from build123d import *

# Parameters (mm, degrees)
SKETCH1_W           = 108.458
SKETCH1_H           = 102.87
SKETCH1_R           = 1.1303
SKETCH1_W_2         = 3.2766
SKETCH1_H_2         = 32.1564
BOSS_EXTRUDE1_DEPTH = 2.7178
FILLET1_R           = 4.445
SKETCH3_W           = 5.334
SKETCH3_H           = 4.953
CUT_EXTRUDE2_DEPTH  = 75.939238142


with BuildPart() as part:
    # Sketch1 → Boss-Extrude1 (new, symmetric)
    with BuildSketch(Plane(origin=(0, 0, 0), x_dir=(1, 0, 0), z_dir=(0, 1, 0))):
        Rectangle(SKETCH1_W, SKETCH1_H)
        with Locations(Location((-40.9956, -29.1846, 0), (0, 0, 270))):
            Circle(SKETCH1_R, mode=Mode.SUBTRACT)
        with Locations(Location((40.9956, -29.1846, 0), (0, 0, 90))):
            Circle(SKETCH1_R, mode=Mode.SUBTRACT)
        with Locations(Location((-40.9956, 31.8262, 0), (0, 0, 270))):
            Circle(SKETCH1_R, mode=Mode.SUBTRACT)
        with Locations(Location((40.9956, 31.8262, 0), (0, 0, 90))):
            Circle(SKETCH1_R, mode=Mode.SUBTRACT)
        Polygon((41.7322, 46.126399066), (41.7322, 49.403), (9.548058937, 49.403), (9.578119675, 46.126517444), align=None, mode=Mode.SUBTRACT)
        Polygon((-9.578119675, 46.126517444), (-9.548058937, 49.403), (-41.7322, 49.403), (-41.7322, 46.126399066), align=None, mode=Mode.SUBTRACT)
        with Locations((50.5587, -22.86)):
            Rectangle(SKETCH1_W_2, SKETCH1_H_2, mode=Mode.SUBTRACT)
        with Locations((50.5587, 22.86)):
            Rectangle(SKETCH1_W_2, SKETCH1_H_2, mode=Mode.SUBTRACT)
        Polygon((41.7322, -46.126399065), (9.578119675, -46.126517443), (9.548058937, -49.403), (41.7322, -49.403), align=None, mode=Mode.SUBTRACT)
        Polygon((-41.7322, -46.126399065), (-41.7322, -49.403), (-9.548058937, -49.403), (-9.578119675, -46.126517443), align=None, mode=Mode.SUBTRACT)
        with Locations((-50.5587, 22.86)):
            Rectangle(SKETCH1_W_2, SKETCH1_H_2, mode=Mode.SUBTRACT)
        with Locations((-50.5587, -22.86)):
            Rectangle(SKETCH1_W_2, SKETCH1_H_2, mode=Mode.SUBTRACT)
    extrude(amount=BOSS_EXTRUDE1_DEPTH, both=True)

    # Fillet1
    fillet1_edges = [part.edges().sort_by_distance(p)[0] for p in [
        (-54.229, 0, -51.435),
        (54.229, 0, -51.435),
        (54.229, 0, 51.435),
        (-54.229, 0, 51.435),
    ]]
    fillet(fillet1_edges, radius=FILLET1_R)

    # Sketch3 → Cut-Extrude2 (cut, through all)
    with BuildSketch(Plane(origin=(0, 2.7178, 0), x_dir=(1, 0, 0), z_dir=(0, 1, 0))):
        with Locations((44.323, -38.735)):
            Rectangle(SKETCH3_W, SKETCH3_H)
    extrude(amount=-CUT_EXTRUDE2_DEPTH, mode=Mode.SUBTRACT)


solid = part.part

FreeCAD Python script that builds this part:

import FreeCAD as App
import Part
import Sketcher
Q = App.Units.Quantity


def edges_at(feature, points):
    """Names of the edges that pass closest to the given points."""
    edges = feature.Shape.Edges
    near = lambda p: min(range(len(edges)), key=lambda i: edges[i].distToShape(Part.Vertex(*p))[0])
    return sorted({f"Edge{near(p) + 1}" for p in points})

doc = App.newDocument("Part")
body = doc.addObject("PartDesign::Body", "Body")

# Sketch on XZ plane
sketch1 = body.newObject("Sketcher::SketchObject", "Sketch")
sketch1.AttachmentSupport = (doc.getObject("XZ_Plane"), [""])
sketch1.MapMode = "FlatFace"
sketch1.addGeometry(Part.LineSegment(App.Vector(-54.2, -51.4, 0), App.Vector(-54.2, 51.4, 0)), False)
sketch1.addGeometry(Part.LineSegment(App.Vector(-54.2, 51.4, 0), App.Vector(54.2, 51.4, 0)), False)
sketch1.addGeometry(Part.LineSegment(App.Vector(54.2, 51.4, 0), App.Vector(54.2, -51.4, 0)), False)
sketch1.addGeometry(Part.LineSegment(App.Vector(54.2, -51.4, 0), App.Vector(-54.2, -51.4, 0)), False)
sketch1.addGeometry(Part.Circle(App.Vector(-41, 29.2, 0), App.Vector(0, 0, 1), 1.1), False)
sketch1.addGeometry(Part.LineSegment(App.Vector(-41.7, 49.4, 0), App.Vector(-41.7, 46.1, 0)), False)
sketch1.addGeometry(Part.LineSegment(App.Vector(-41.7, 46.1, 0), App.Vector(-9.6, 46.1, 0)), False)
sketch1.addGeometry(Part.LineSegment(App.Vector(-9.6, 46.1, 0), App.Vector(-9.5, 49.4, 0)), False)
sketch1.addGeometry(Part.LineSegment(App.Vector(-9.5, 49.4, 0), App.Vector(-41.7, 49.4, 0)), False)
sketch1.addGeometry(Part.LineSegment(App.Vector(-48.9, 38.9, 0), App.Vector(-52.2, 38.9, 0)), False)
sketch1.addGeometry(Part.LineSegment(App.Vector(-52.2, 38.9, 0), App.Vector(-52.2, 6.8, 0)), False)
sketch1.addGeometry(Part.LineSegment(App.Vector(-52.2, 6.8, 0), App.Vector(-48.9, 6.8, 0)), False)
sketch1.addGeometry(Part.LineSegment(App.Vector(-48.9, 6.8, 0), App.Vector(-48.9, 38.9, 0)), False)
sketch1.addGeometry(Part.LineSegment(App.Vector(9.6, 46.1, 0), App.Vector(41.7, 46.1, 0)), False)
sketch1.addGeometry(Part.LineSegment(App.Vector(41.7, 46.1, 0), App.Vector(41.7, 49.4, 0)), False)
sketch1.addGeometry(Part.LineSegment(App.Vector(41.7, 49.4, 0), App.Vector(9.5, 49.4, 0)), False)
sketch1.addGeometry(Part.LineSegment(App.Vector(9.5, 49.4, 0), App.Vector(9.6, 46.1, 0)), False)
sketch1.addGeometry(Part.Circle(App.Vector(41, 29.2, 0), App.Vector(0, 0, 1), 1.1), False)
sketch1.addGeometry(Part.LineSegment(App.Vector(52.2, 38.9, 0), App.Vector(48.9, 38.9, 0)), False)
sketch1.addGeometry(Part.LineSegment(App.Vector(48.9, 38.9, 0), App.Vector(48.9, 6.8, 0)), False)
sketch1.addGeometry(Part.LineSegment(App.Vector(48.9, 6.8, 0), App.Vector(52.2, 6.8, 0)), False)
sketch1.addGeometry(Part.LineSegment(App.Vector(52.2, 6.8, 0), App.Vector(52.2, 38.9, 0)), False)
sketch1.addGeometry(Part.LineSegment(App.Vector(-48.9, -6.8, 0), App.Vector(-52.2, -6.8, 0)), False)
sketch1.addGeometry(Part.LineSegment(App.Vector(-52.2, -6.8, 0), App.Vector(-52.2, -38.9, 0)), False)
sketch1.addGeometry(Part.LineSegment(App.Vector(-52.2, -38.9, 0), App.Vector(-48.9, -38.9, 0)), False)
sketch1.addGeometry(Part.LineSegment(App.Vector(-48.9, -38.9, 0), App.Vector(-48.9, -6.8, 0)), False)
sketch1.addGeometry(Part.Circle(App.Vector(-41, -31.8, 0), App.Vector(0, 0, 1), 1.1), False)
sketch1.addGeometry(Part.LineSegment(App.Vector(-9.5, -49.4, 0), App.Vector(-9.6, -46.1, 0)), False)
sketch1.addGeometry(Part.LineSegment(App.Vector(-9.6, -46.1, 0), App.Vector(-41.7, -46.1, 0)), False)
sketch1.addGeometry(Part.LineSegment(App.Vector(-41.7, -46.1, 0), App.Vector(-41.7, -49.4, 0)), False)
sketch1.addGeometry(Part.LineSegment(App.Vector(-41.7, -49.4, 0), App.Vector(-9.5, -49.4, 0)), False)
sketch1.addGeometry(Part.LineSegment(App.Vector(52.2, -6.8, 0), App.Vector(48.9, -6.8, 0)), False)
sketch1.addGeometry(Part.LineSegment(App.Vector(48.9, -6.8, 0), App.Vector(48.9, -38.9, 0)), False)
sketch1.addGeometry(Part.LineSegment(App.Vector(48.9, -38.9, 0), App.Vector(52.2, -38.9, 0)), False)
sketch1.addGeometry(Part.LineSegment(App.Vector(52.2, -38.9, 0), App.Vector(52.2, -6.8, 0)), False)
sketch1.addGeometry(Part.LineSegment(App.Vector(41.7, -49.4, 0), App.Vector(41.7, -46.1, 0)), False)
sketch1.addGeometry(Part.LineSegment(App.Vector(41.7, -46.1, 0), App.Vector(9.6, -46.1, 0)), False)
sketch1.addGeometry(Part.LineSegment(App.Vector(9.6, -46.1, 0), App.Vector(9.5, -49.4, 0)), False)
sketch1.addGeometry(Part.LineSegment(App.Vector(9.5, -49.4, 0), App.Vector(41.7, -49.4, 0)), False)
sketch1.addGeometry(Part.Circle(App.Vector(41, -31.8, 0), App.Vector(0, 0, 1), 1.1), False)
sketch1.addConstraint(Sketcher.Constraint("Coincident", 0, 2, 1, 1))
sketch1.addConstraint(Sketcher.Constraint("Coincident", 1, 2, 2, 1))
sketch1.addConstraint(Sketcher.Constraint("Coincident", 2, 2, 3, 1))
sketch1.addConstraint(Sketcher.Constraint("Coincident", 3, 2, 0, 1))
sketch1.addConstraint(Sketcher.Constraint("Coincident", 5, 2, 6, 1))
sketch1.addConstraint(Sketcher.Constraint("Coincident", 6, 2, 7, 1))
sketch1.addConstraint(Sketcher.Constraint("Coincident", 7, 2, 8, 1))
sketch1.addConstraint(Sketcher.Constraint("Coincident", 8, 2, 5, 1))
sketch1.addConstraint(Sketcher.Constraint("Coincident", 9, 2, 10, 1))
sketch1.addConstraint(Sketcher.Constraint("Coincident", 10, 2, 11, 1))
sketch1.addConstraint(Sketcher.Constraint("Coincident", 11, 2, 12, 1))
sketch1.addConstraint(Sketcher.Constraint("Coincident", 12, 2, 9, 1))
sketch1.addConstraint(Sketcher.Constraint("Coincident", 13, 2, 14, 1))
sketch1.addConstraint(Sketcher.Constraint("Coincident", 14, 2, 15, 1))
sketch1.addConstraint(Sketcher.Constraint("Coincident", 15, 2, 16, 1))
sketch1.addConstraint(Sketcher.Constraint("Coincident", 16, 2, 13, 1))
sketch1.addConstraint(Sketcher.Constraint("Coincident", 18, 2, 19, 1))
sketch1.addConstraint(Sketcher.Constraint("Coincident", 19, 2, 20, 1))
sketch1.addConstraint(Sketcher.Constraint("Coincident", 20, 2, 21, 1))
sketch1.addConstraint(Sketcher.Constraint("Coincident", 21, 2, 18, 1))
sketch1.addConstraint(Sketcher.Constraint("Coincident", 22, 2, 23, 1))
sketch1.addConstraint(Sketcher.Constraint("Coincident", 23, 2, 24, 1))
sketch1.addConstraint(Sketcher.Constraint("Coincident", 24, 2, 25, 1))
sketch1.addConstraint(Sketcher.Constraint("Coincident", 25, 2, 22, 1))
sketch1.addConstraint(Sketcher.Constraint("Coincident", 27, 2, 28, 1))
sketch1.addConstraint(Sketcher.Constraint("Coincident", 28, 2, 29, 1))
sketch1.addConstraint(Sketcher.Constraint("Coincident", 29, 2, 30, 1))
sketch1.addConstraint(Sketcher.Constraint("Coincident", 30, 2, 27, 1))
sketch1.addConstraint(Sketcher.Constraint("Coincident", 31, 2, 32, 1))
sketch1.addConstraint(Sketcher.Constraint("Coincident", 32, 2, 33, 1))
sketch1.addConstraint(Sketcher.Constraint("Coincident", 33, 2, 34, 1))
sketch1.addConstraint(Sketcher.Constraint("Coincident", 34, 2, 31, 1))
sketch1.addConstraint(Sketcher.Constraint("Coincident", 35, 2, 36, 1))
sketch1.addConstraint(Sketcher.Constraint("Coincident", 36, 2, 37, 1))
sketch1.addConstraint(Sketcher.Constraint("Coincident", 37, 2, 38, 1))
sketch1.addConstraint(Sketcher.Constraint("Coincident", 38, 2, 35, 1))
sketch1.addConstraint(Sketcher.Constraint("Vertical", 0))
sketch1.addConstraint(Sketcher.Constraint("Horizontal", 1))
sketch1.addConstraint(Sketcher.Constraint("Vertical", 2))
sketch1.addConstraint(Sketcher.Constraint("Horizontal", 3))
sketch1.addConstraint(Sketcher.Constraint("Vertical", 5))
sketch1.addConstraint(Sketcher.Constraint("Horizontal", 8))
sketch1.addConstraint(Sketcher.Constraint("Horizontal", 9))
sketch1.addConstraint(Sketcher.Constraint("Vertical", 10))
sketch1.addConstraint(Sketcher.Constraint("Horizontal", 11))
sketch1.addConstraint(Sketcher.Constraint("Vertical", 12))
sketch1.addConstraint(Sketcher.Constraint("Vertical", 14))
sketch1.addConstraint(Sketcher.Constraint("Horizontal", 15))
sketch1.addConstraint(Sketcher.Constraint("Horizontal", 18))
sketch1.addConstraint(Sketcher.Constraint("Vertical", 19))
sketch1.addConstraint(Sketcher.Constraint("Horizontal", 20))
sketch1.addConstraint(Sketcher.Constraint("Vertical", 21))
sketch1.addConstraint(Sketcher.Constraint("Horizontal", 22))
sketch1.addConstraint(Sketcher.Constraint("Vertical", 23))
sketch1.addConstraint(Sketcher.Constraint("Horizontal", 24))
sketch1.addConstraint(Sketcher.Constraint("Vertical", 25))
sketch1.addConstraint(Sketcher.Constraint("Vertical", 29))
sketch1.addConstraint(Sketcher.Constraint("Horizontal", 30))
sketch1.addConstraint(Sketcher.Constraint("Horizontal", 31))
sketch1.addConstraint(Sketcher.Constraint("Vertical", 32))
sketch1.addConstraint(Sketcher.Constraint("Horizontal", 33))
sketch1.addConstraint(Sketcher.Constraint("Vertical", 34))
sketch1.addConstraint(Sketcher.Constraint("Vertical", 35))
sketch1.addConstraint(Sketcher.Constraint("Horizontal", 38))
sketch1.addConstraint(Sketcher.Constraint("Equal", 4, 17))
sketch1.addConstraint(Sketcher.Constraint("Equal", 17, 26))
sketch1.addConstraint(Sketcher.Constraint("Equal", 26, 39))
sketch1.addConstraint(Sketcher.Constraint("Symmetric", 0, 2, 2, 2, -1, 1))
sketch1.addConstraint(Sketcher.Constraint("Symmetric", 20, 2, 22, 2, -1, 1))
sketch1.addConstraint(Sketcher.Constraint("Symmetric", 18, 2, 24, 2, -1, 1))
sketch1.addConstraint(Sketcher.Constraint("Symmetric", 16, 2, 27, 2, -1, 1))
sketch1.addConstraint(Sketcher.Constraint("Symmetric", 13, 2, 28, 2, -1, 1))
sketch1.addConstraint(Sketcher.Constraint("Symmetric", 15, 2, 30, 2, -1, 1))
sketch1.addConstraint(Sketcher.Constraint("Symmetric", 11, 2, 31, 2, -1, 1))
sketch1.addConstraint(Sketcher.Constraint("Symmetric", 9, 2, 33, 2, -1, 1))
sketch1.addConstraint(Sketcher.Constraint("Symmetric", 5, 2, 35, 2, -1, 1))
sketch1.addConstraint(Sketcher.Constraint("Symmetric", 6, 2, 36, 2, -1, 1))
sketch1.addConstraint(Sketcher.Constraint("Symmetric", 7, 2, 37, 2, -1, 1))
sketch1.addConstraint(Sketcher.Constraint("Symmetric", 4, 3, 17, 3, -2))
sketch1.addConstraint(Sketcher.Constraint("Symmetric", 26, 3, 39, 3, -2))
sketch1.addConstraint(Sketcher.Constraint("Symmetric", 5, 2, 13, 2, -2))
sketch1.addConstraint(Sketcher.Constraint("Symmetric", 7, 2, 15, 2, -2))
sketch1.addConstraint(Sketcher.Constraint("Symmetric", 6, 2, 16, 2, -2))
sketch1.addConstraint(Sketcher.Constraint("Symmetric", 12, 2, 18, 2, -2))
sketch1.addConstraint(Sketcher.Constraint("Symmetric", 10, 2, 20, 2, -2))
sketch1.addConstraint(Sketcher.Constraint("Vertical", 4, 3, 26, 3))
sketch1.addConstraint(Sketcher.Constraint("Equal", 33, 5))
sketch1.addConstraint(Sketcher.Constraint("Diameter", 4, Q("0.089 in")))
sketch1.addConstraint(Sketcher.Constraint("DistanceX", 1, 1, 1, 2, Q("4.27 in")))
sketch1.addConstraint(Sketcher.Constraint("DistanceY", 0, 1, 0, 2, Q("4.05 in")))
sketch1.addConstraint(Sketcher.Constraint("DistanceY", 23, 2, 10, 2, Q("1.8 in")))
sketch1.addConstraint(Sketcher.Constraint("DistanceX", 9, 2, 9, 1, Q("0.129 in")))
sketch1.addConstraint(Sketcher.Constraint("DistanceY", 10, 2, 10, 1, Q("1.266 in")))
sketch1.addConstraint(Sketcher.Constraint("DistanceY", 7, 2, 0, 2, Q("0.08 in")))
sketch1.addConstraint(Sketcher.Constraint("DistanceX", 0, 2, 9, 2, Q("0.08 in")))
sketch1.addConstraint(Sketcher.Constraint("DistanceY", 26, 3, 10, 2, Q("1.52 in")))
sketch1.addConstraint(Sketcher.Constraint("DistanceX", 4, 3, -1, 1, Q("1.614 in")))
sketch1.addConstraint(Sketcher.Constraint("DistanceY", -1, 1, 4, 3, Q("1.149 in")))
sketch1.addConstraint(Sketcher.Constraint("DistanceX", 5, 2, -1, 1, Q("1.643 in")))
sketch1.addConstraint(Sketcher.Constraint("DistanceX", 8, 2, 8, 1, 32.184141))
sketch1.addConstraint(Sketcher.Constraint("Distance", 6, 32.15408))
sketch1.addConstraint(Sketcher.Constraint("Distance", 7, 3.27662))
pad1 = body.newObject("PartDesign::Pad", "Pad")
pad1.Profile = sketch1
pad1.Length = Q("0.214 in")
pad1.Midplane = True
doc.recompute()

fillet = body.newObject("PartDesign::Fillet", "Fillet")
fillet.Base = (pad1, edges_at(pad1, [
    (-54.229, 0, -51.435),
    (54.229, 0, -51.435),
    (54.229, 0, 51.435),
    (-54.229, 0, 51.435),
]))
fillet.Radius = Q("0.175 in")

# Sketch on XZ plane
sketch2 = body.newObject("Sketcher::SketchObject", "Sketch001")
sketch2.AttachmentSupport = (doc.getObject("XZ_Plane"), [""])
sketch2.MapMode = "FlatFace"
sketch2.AttachmentOffset = App.Placement(App.Vector(0, 0, -0.107 * 25.4), App.Rotation())
sketch2.addGeometry(Part.LineSegment(App.Vector(41.7, 36.3, 0), App.Vector(41.7, 41.2, 0)), False)
sketch2.addGeometry(Part.LineSegment(App.Vector(41.7, 41.2, 0), App.Vector(47, 41.2, 0)), False)
sketch2.addGeometry(Part.LineSegment(App.Vector(47, 41.2, 0), App.Vector(47, 36.3, 0)), False)
sketch2.addGeometry(Part.LineSegment(App.Vector(47, 36.3, 0), App.Vector(41.7, 36.3, 0)), False)
sketch2.addConstraint(Sketcher.Constraint("Coincident", 0, 2, 1, 1))
sketch2.addConstraint(Sketcher.Constraint("Coincident", 1, 2, 2, 1))
sketch2.addConstraint(Sketcher.Constraint("Coincident", 2, 2, 3, 1))
sketch2.addConstraint(Sketcher.Constraint("Coincident", 3, 2, 0, 1))
sketch2.addConstraint(Sketcher.Constraint("Vertical", 0))
sketch2.addConstraint(Sketcher.Constraint("Horizontal", 1))
sketch2.addConstraint(Sketcher.Constraint("Vertical", 2))
sketch2.addConstraint(Sketcher.Constraint("Horizontal", 3))
sketch2.addConstraint(Sketcher.Constraint("DistanceX", 1, 1, 1, 2, Q("0.21 in")))
sketch2.addConstraint(Sketcher.Constraint("DistanceY", 0, 1, 0, 2, Q("0.195 in")))
sketch2.addConstraint(Sketcher.Constraint("DistanceX", -1, 1, 0, 2, Q("1.64 in")))
sketch2.addConstraint(Sketcher.Constraint("DistanceY", -1, 1, 0, 2, Q("1.6225 in")))
pocket1 = body.newObject("PartDesign::Pocket", "Pocket")
pocket1.Profile = sketch2
pocket1.Type = "ThroughAll"
pocket1.Reversed = True

doc.recompute()
